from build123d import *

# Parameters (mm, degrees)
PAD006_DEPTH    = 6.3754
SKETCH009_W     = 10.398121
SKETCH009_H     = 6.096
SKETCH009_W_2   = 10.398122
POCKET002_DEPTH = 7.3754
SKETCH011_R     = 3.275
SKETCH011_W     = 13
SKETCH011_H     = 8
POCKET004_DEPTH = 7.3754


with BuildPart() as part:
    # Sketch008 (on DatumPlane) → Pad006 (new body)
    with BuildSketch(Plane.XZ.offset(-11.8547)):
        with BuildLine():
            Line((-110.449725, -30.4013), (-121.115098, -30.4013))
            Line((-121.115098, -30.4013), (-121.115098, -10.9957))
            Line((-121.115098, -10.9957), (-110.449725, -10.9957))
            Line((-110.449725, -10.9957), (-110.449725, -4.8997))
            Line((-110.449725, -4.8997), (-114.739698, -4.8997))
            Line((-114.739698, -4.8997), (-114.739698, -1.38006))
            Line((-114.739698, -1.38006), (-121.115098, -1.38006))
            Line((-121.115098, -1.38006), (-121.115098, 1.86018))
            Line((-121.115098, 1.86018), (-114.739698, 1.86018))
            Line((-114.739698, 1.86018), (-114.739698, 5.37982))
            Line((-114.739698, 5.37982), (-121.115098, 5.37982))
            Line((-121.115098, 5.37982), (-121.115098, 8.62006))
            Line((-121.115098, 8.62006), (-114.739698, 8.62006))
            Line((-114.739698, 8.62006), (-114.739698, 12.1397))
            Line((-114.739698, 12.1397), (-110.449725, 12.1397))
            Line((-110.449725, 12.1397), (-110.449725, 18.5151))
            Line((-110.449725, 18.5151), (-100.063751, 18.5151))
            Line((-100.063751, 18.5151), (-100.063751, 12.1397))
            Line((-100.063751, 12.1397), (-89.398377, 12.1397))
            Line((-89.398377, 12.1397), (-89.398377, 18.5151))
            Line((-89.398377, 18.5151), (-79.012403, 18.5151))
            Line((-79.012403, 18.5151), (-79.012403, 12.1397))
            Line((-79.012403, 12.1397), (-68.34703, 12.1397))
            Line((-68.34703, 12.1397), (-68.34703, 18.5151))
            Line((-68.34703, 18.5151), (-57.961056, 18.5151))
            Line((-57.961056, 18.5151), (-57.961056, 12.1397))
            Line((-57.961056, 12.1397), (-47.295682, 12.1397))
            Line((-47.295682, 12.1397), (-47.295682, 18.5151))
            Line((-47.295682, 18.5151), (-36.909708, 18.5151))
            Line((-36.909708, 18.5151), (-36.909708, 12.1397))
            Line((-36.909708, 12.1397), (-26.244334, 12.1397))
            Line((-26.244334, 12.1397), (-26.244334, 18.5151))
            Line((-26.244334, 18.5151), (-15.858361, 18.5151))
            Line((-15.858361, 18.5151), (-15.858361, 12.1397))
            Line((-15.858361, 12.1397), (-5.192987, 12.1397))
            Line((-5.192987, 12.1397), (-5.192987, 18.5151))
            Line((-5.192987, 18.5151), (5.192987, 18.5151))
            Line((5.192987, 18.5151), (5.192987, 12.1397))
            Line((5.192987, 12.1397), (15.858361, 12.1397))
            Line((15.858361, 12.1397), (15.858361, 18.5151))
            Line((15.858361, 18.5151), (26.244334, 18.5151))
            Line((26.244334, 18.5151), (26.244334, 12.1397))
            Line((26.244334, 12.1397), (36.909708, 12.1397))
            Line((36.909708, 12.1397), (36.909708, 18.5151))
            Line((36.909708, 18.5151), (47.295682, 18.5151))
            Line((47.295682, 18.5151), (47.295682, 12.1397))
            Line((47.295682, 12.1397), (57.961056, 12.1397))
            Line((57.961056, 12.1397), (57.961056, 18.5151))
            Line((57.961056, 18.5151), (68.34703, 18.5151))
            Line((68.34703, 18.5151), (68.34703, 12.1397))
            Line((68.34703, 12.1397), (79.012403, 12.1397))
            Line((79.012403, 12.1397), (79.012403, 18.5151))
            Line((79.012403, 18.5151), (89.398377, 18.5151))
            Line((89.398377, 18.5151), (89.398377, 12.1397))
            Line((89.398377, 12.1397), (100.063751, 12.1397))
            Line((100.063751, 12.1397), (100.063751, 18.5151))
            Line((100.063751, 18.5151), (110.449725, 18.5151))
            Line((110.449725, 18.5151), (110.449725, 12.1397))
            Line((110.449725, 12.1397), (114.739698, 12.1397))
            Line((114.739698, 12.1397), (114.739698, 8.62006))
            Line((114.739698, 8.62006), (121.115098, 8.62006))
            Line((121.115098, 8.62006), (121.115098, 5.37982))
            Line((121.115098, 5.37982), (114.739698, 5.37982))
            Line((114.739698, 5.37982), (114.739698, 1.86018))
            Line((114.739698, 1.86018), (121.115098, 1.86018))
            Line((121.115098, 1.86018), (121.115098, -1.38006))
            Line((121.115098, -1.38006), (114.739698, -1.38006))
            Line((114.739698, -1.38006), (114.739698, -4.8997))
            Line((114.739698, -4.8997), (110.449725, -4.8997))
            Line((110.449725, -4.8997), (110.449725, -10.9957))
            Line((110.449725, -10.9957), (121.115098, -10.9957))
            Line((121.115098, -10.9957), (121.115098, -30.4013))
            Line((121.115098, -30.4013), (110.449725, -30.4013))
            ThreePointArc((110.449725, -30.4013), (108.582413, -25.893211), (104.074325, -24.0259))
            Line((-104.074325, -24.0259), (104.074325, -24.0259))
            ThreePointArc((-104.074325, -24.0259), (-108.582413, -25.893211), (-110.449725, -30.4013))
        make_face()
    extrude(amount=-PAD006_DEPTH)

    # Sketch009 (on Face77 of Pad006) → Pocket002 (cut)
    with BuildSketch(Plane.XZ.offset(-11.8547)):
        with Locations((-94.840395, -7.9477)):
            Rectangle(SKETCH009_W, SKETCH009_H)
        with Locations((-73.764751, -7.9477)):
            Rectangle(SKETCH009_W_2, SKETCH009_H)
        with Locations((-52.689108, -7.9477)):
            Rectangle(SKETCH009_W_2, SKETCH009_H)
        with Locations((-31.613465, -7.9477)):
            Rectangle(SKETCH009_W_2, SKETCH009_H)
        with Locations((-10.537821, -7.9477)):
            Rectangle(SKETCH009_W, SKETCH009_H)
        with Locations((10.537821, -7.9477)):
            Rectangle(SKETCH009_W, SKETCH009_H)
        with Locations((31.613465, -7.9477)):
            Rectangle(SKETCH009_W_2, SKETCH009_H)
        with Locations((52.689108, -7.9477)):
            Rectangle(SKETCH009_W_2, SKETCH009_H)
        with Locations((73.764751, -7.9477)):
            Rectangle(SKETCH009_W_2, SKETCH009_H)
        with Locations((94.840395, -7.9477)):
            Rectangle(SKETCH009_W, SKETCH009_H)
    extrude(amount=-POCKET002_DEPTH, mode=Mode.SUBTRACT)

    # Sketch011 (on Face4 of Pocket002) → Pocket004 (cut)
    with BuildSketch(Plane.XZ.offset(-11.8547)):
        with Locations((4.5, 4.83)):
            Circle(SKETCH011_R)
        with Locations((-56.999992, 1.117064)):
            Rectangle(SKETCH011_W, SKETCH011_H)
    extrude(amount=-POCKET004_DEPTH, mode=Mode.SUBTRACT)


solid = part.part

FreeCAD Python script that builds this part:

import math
import FreeCAD as App
import Part
import Sketcher
Q = App.Units.Quantity

doc = App.newDocument("Part")
body = doc.addObject("PartDesign::Body", "Body")

sketch1 = body.newObject("Sketcher::SketchObject", "Sketch")
sketch1.AttachmentSupport = (doc.getObject("XZ_Plane"), [""])
sketch1.MapMode = "FlatFace"
sketch1.AttachmentOffset = App.Placement(App.Vector(0, 0, -11.8547), App.Rotation())
sketch1.addGeometry(Part.LineSegment(App.Vector(-121.1, -30.4, 0), App.Vector(-110.4, -30.4, 0)), False)
sketch1.addGeometry(Part.ArcOfCircle(Part.Circle(App.Vector(-104.1, -30.4, 0), App.Vector(0, 0, 1), 6.4), math.radians(90), math.radians(180)), False)
sketch1.addGeometry(Part.LineSegment(App.Vector(-104.1, -24, 0), App.Vector(104.1, -24, 0)), False)
sketch1.addGeometry(Part.ArcOfCircle(Part.Circle(App.Vector(104.1, -30.4, 0), App.Vector(0, 0, 1), 6.4), math.radians(0), math.radians(90)), False)
sketch1.addGeometry(Part.LineSegment(App.Vector(110.4, -30.4, 0), App.Vector(121.1, -30.4, 0)), False)
sketch1.addGeometry(Part.LineSegment(App.Vector(121.1, -30.4, 0), App.Vector(121.1, -11, 0)), False)
sketch1.addGeometry(Part.LineSegment(App.Vector(121.1, -11, 0), App.Vector(110.4, -11, 0)), False)
sketch1.addGeometry(Part.LineSegment(App.Vector(110.4, -11, 0), App.Vector(110.4, -4.9, 0)), False)
sketch1.addGeometry(Part.LineSegment(App.Vector(110.4, -4.9, 0), App.Vector(114.7, -4.9, 0)), False)
sketch1.addGeometry(Part.LineSegment(App.Vector(114.7, -4.9, 0), App.Vector(114.7, -1.4, 0)), False)
sketch1.addGeometry(Part.LineSegment(App.Vector(114.7, -1.4, 0), App.Vector(121.1, -1.4, 0)), False)
sketch1.addGeometry(Part.LineSegment(App.Vector(121.1, -1.4, 0), App.Vector(121.1, 1.9, 0)), False)
sketch1.addGeometry(Part.LineSegment(App.Vector(121.1, 1.9, 0), App.Vector(114.7, 1.9, 0)), False)
sketch1.addGeometry(Part.LineSegment(App.Vector(114.7, 1.9, 0), App.Vector(114.7, 5.4, 0)), False)
sketch1.addGeometry(Part.LineSegment(App.Vector(114.7, 5.4, 0), App.Vector(121.1, 5.4, 0)), False)
sketch1.addGeometry(Part.LineSegment(App.Vector(121.1, 5.4, 0), App.Vector(121.1, 8.6, 0)), False)
sketch1.addGeometry(Part.LineSegment(App.Vector(121.1, 8.6, 0), App.Vector(114.7, 8.6, 0)), False)
sketch1.addGeometry(Part.LineSegment(App.Vector(114.7, 8.6, 0), App.Vector(114.7, 12.1, 0)), False)
sketch1.addGeometry(Part.LineSegment(App.Vector(114.7, 12.1, 0), App.Vector(110.4, 12.1, 0)), False)
sketch1.addGeometry(Part.LineSegment(App.Vector(110.4, 12.1, 0), App.Vector(110.4, 18.5, 0)), False)
sketch1.addGeometry(Part.LineSegment(App.Vector(110.4, 18.5, 0), App.Vector(100.1, 18.5, 0)), False)
sketch1.addGeometry(Part.LineSegment(App.Vector(100.1, 18.5, 0), App.Vector(100.1, 12.1, 0)), False)
sketch1.addGeometry(Part.LineSegment(App.Vector(100.1, 12.1, 0), App.Vector(89.4, 12.1, 0)), False)
sketch1.addGeometry(Part.LineSegment(App.Vector(89.4, 12.1, 0), App.Vector(89.4, 18.5, 0)), False)
sketch1.addGeometry(Part.LineSegment(App.Vector(89.4, 18.5, 0), App.Vector(79, 18.5, 0)), False)
sketch1.addGeometry(Part.LineSegment(App.Vector(79, 18.5, 0), App.Vector(79, 12.1, 0)), False)
sketch1.addGeometry(Part.LineSegment(App.Vector(79, 12.1, 0), App.Vector(68.3, 12.1, 0)), False)
sketch1.addGeometry(Part.LineSegment(App.Vector(68.3, 12.1, 0), App.Vector(68.3, 18.5, 0)), False)
sketch1.addGeometry(Part.LineSegment(App.Vector(68.3, 18.5, 0), App.Vector(58, 18.5, 0)), False)
sketch1.addGeometry(Part.LineSegment(App.Vector(58, 18.5, 0), App.Vector(58, 12.1, 0)), False)
sketch1.addGeometry(Part.LineSegment(App.Vector(58, 12.1, 0), App.Vector(47.3, 12.1, 0)), False)
sketch1.addGeometry(Part.LineSegment(App.Vector(47.3, 12.1, 0), App.Vector(47.3, 18.5, 0)), False)
sketch1.addGeometry(Part.LineSegment(App.Vector(47.3, 18.5, 0), App.Vector(36.9, 18.5, 0)), False)
sketch1.addGeometry(Part.LineSegment(App.Vector(36.9, 18.5, 0), App.Vector(36.9, 12.1, 0)), False)
sketch1.addGeometry(Part.LineSegment(App.Vector(36.9, 12.1, 0), App.Vector(26.2, 12.1, 0)), False)
sketch1.addGeometry(Part.LineSegment(App.Vector(26.2, 12.1, 0), App.Vector(26.2, 18.5, 0)), False)
sketch1.addGeometry(Part.LineSegment(App.Vector(26.2, 18.5, 0), App.Vector(15.9, 18.5, 0)), False)
sketch1.addGeometry(Part.LineSegment(App.Vector(15.9, 18.5, 0), App.Vector(15.9, 12.1, 0)), False)
sketch1.addGeometry(Part.LineSegment(App.Vector(15.9, 12.1, 0), App.Vector(5.2, 12.1, 0)), False)
sketch1.addGeometry(Part.LineSegment(App.Vector(5.2, 12.1, 0), App.Vector(5.2, 18.5, 0)), False)
sketch1.addGeometry(Part.LineSegment(App.Vector(5.2, 18.5, 0), App.Vector(-5.2, 18.5, 0)), False)
sketch1.addGeometry(Part.LineSegment(App.Vector(-5.2, 18.5, 0), App.Vector(-5.2, 12.1, 0)), False)
sketch1.addGeometry(Part.LineSegment(App.Vector(-5.2, 12.1, 0), App.Vector(-15.9, 12.1, 0)), False)
sketch1.addGeometry(Part.LineSegment(App.Vector(-15.9, 12.1, 0), App.Vector(-15.9, 18.5, 0)), False)
sketch1.addGeometry(Part.LineSegment(App.Vector(-15.9, 18.5, 0), App.Vector(-26.2, 18.5, 0)), False)
sketch1.addGeometry(Part.LineSegment(App.Vector(-26.2, 18.5, 0), App.Vector(-26.2, 12.1, 0)), False)
sketch1.addGeometry(Part.LineSegment(App.Vector(-26.2, 12.1, 0), App.Vector(-36.9, 12.1, 0)), False)
sketch1.addGeometry(Part.LineSegment(App.Vector(-36.9, 12.1, 0), App.Vector(-36.9, 18.5, 0)), False)
sketch1.addGeometry(Part.LineSegment(App.Vector(-36.9, 18.5, 0), App.Vector(-47.3, 18.5, 0)), False)
sketch1.addGeometry(Part.LineSegment(App.Vector(-47.3, 18.5, 0), App.Vector(-47.3, 12.1, 0)), False)
sketch1.addGeometry(Part.LineSegment(App.Vector(-47.3, 12.1, 0), App.Vector(-58, 12.1, 0)), False)
sketch1.addGeometry(Part.LineSegment(App.Vector(-58, 12.1, 0), App.Vector(-58, 18.5, 0)), False)
sketch1.addGeometry(Part.LineSegment(App.Vector(-58, 18.5, 0), App.Vector(-68.3, 18.5, 0)), False)
sketch1.addGeometry(Part.LineSegment(App.Vector(-68.3, 18.5, 0), App.Vector(-68.3, 12.1, 0)), False)
sketch1.addGeometry(Part.LineSegment(App.Vector(-68.3, 12.1, 0), App.Vector(-79, 12.1, 0)), False)
sketch1.addGeometry(Part.LineSegment(App.Vector(-79, 12.1, 0), App.Vector(-79, 18.5, 0)), False)
sketch1.addGeometry(Part.LineSegment(App.Vector(-79, 18.5, 0), App.Vector(-89.4, 18.5, 0)), False)
sketch1.addGeometry(Part.LineSegment(App.Vector(-89.4, 18.5, 0), App.Vector(-89.4, 12.1, 0)), False)
sketch1.addGeometry(Part.LineSegment(App.Vector(-89.4, 12.1, 0), App.Vector(-100.1, 12.1, 0)), False)
sketch1.addGeometry(Part.LineSegment(App.Vector(-100.1, 12.1, 0), App.Vector(-100.1, 18.5, 0)), False)
sketch1.addGeometry(Part.LineSegment(App.Vector(-100.1, 18.5, 0), App.Vector(-110.4, 18.5, 0)), False)
sketch1.addGeometry(Part.LineSegment(App.Vector(-110.4, 18.5, 0), App.Vector(-110.4, 12.1, 0)), False)
sketch1.addGeometry(Part.LineSegment(App.Vector(-110.4, 12.1, 0), App.Vector(-114.7, 12.1, 0)), False)
sketch1.addGeometry(Part.LineSegment(App.Vector(-114.7, 12.1, 0), App.Vector(-114.7, 8.6, 0)), False)
sketch1.addGeometry(Part.LineSegment(App.Vector(-114.7, 8.6, 0), App.Vector(-121.1, 8.6, 0)), False)
sketch1.addGeometry(Part.LineSegment(App.Vector(-121.1, 8.6, 0), App.Vector(-121.1, 5.4, 0)), False)
sketch1.addGeometry(Part.LineSegment(App.Vector(-121.1, 5.4, 0), App.Vector(-114.7, 5.4, 0)), False)
sketch1.addGeometry(Part.LineSegment(App.Vector(-114.7, 5.4, 0), App.Vector(-114.7, 1.9, 0)), False)
sketch1.addGeometry(Part.LineSegment(App.Vector(-114.7, 1.9, 0), App.Vector(-121.1, 1.9, 0)), False)
sketch1.addGeometry(Part.LineSegment(App.Vector(-121.1, 1.9, 0), App.Vector(-121.1, -1.4, 0)), False)
sketch1.addGeometry(Part.LineSegment(App.Vector(-121.1, -1.4, 0), App.Vector(-114.7, -1.4, 0)), False)
sketch1.addGeometry(Part.LineSegment(App.Vector(-114.7, -1.4, 0), App.Vector(-114.7, -4.9, 0)), False)
sketch1.addGeometry(Part.LineSegment(App.Vector(-114.7, -4.9, 0), App.Vector(-110.4, -4.9, 0)), False)
sketch1.addGeometry(Part.LineSegment(App.Vector(-110.4, -4.9, 0), App.Vector(-110.4, -11, 0)), False)
sketch1.addGeometry(Part.LineSegment(App.Vector(-110.4, -11, 0), App.Vector(-121.1, -11, 0)), False)
sketch1.addGeometry(Part.LineSegment(App.Vector(-121.1, -11, 0), App.Vector(-121.1, -30.4, 0)), False)
sketch1.addConstraint(Sketcher.Constraint("Coincident", 0, 2, 1, 2))
sketch1.addConstraint(Sketcher.Constraint("Tangent", 1, 1, 2, 1))
sketch1.addConstraint(Sketcher.Constraint("Tangent", 2, 2, 3, 2))
sketch1.addConstraint(Sketcher.Constraint("Coincident", 3, 1, 4, 1))
sketch1.addConstraint(Sketcher.Constraint("Coincident", 4, 2, 5, 1))
sketch1.addConstraint(Sketcher.Constraint("Coincident", 5, 2, 6, 1))
sketch1.addConstraint(Sketcher.Constraint("Coincident", 6, 2, 7, 1))
sketch1.addConstraint(Sketcher.Constraint("Coincident", 7, 2, 8, 1))
sketch1.addConstraint(Sketcher.Constraint("Coincident", 8, 2, 9, 1))
sketch1.addConstraint(Sketcher.Constraint("Coincident", 9, 2, 10, 1))
sketch1.addConstraint(Sketcher.Constraint("Coincident", 10, 2, 11, 1))
sketch1.addConstraint(Sketcher.Constraint("Coincident", 11, 2, 12, 1))
sketch1.addConstraint(Sketcher.Constraint("Coincident", 12, 2, 13, 1))
sketch1.addConstraint(Sketcher.Constraint("Coincident", 13, 2, 14, 1))
sketch1.addConstraint(Sketcher.Constraint("Coincident", 14, 2, 15, 1))
sketch1.addConstraint(Sketcher.Constraint("Coincident", 15, 2, 16, 1))
sketch1.addConstraint(Sketcher.Constraint("Coincident", 16, 2, 17, 1))
sketch1.addConstraint(Sketcher.Constraint("Coincident", 17, 2, 18, 1))
sketch1.addConstraint(Sketcher.Constraint("Coincident", 18, 2, 19, 1))
sketch1.addConstraint(Sketcher.Constraint("Coincident", 19, 2, 20, 1))
sketch1.addConstraint(Sketcher.Constraint("Coincident", 20, 2, 21, 1))
sketch1.addConstraint(Sketcher.Constraint("Coincident", 21, 2, 22, 1))
sketch1.addConstraint(Sketcher.Constraint("Coincident", 22, 2, 23, 1))
sketch1.addConstraint(Sketcher.Constraint("Coincident", 23, 2, 24, 1))
sketch1.addConstraint(Sketcher.Constraint("Coincident", 24, 2, 25, 1))
sketch1.addConstraint(Sketcher.Constraint("Coincident", 25, 2, 26, 1))
sketch1.addConstraint(Sketcher.Constraint("Coincident", 26, 2, 27, 1))
sketch1.addConstraint(Sketcher.Constraint("Coincident", 27, 2, 28, 1))
sketch1.addConstraint(Sketcher.Constraint("Coincident", 28, 2, 29, 1))
sketch1.addConstraint(Sketcher.Constraint("Coincident", 29, 2, 30, 1))
sketch1.addConstraint(Sketcher.Constraint("Coincident", 30, 2, 31, 1))
sketch1.addConstraint(Sketcher.Constraint("Coincident", 31, 2, 32, 1))
sketch1.addConstraint(Sketcher.Constraint("Coincident", 32, 2, 33, 1))
sketch1.addConstraint(Sketcher.Constraint("Coincident", 33, 2, 34, 1))
sketch1.addConstraint(Sketcher.Constraint("Coincident", 34, 2, 35, 1))
sketch1.addConstraint(Sketcher.Constraint("Coincident", 35, 2, 36, 1))
sketch1.addConstraint(Sketcher.Constraint("Coincident", 36, 2, 37, 1))
sketch1.addConstraint(Sketcher.Constraint("Coincident", 37, 2, 38, 1))
sketch1.addConstraint(Sketcher.Constraint("Coincident", 38, 2, 39, 1))
sketch1.addConstraint(Sketcher.Constraint("Coincident", 39, 2, 40, 1))
sketch1.addConstraint(Sketcher.Constraint("Coincident", 40, 2, 41, 1))
sketch1.addConstraint(Sketcher.Constraint("Coincident", 41, 2, 42, 1))
sketch1.addConstraint(Sketcher.Constraint("Coincident", 42, 2, 43, 1))
sketch1.addConstraint(Sketcher.Constraint("Coincident", 43, 2, 44, 1))
sketch1.addConstraint(Sketcher.Constraint("Coincident", 44, 2, 45, 1))
sketch1.addConstraint(Sketcher.Constraint("Coincident", 45, 2, 46, 1))
sketch1.addConstraint(Sketcher.Constraint("Coincident", 46, 2, 47, 1))
sketch1.addConstraint(Sketcher.Constraint("Coincident", 47, 2, 48, 1))
sketch1.addConstraint(Sketcher.Constraint("Coincident", 48, 2, 49, 1))
sketch1.addConstraint(Sketcher.Constraint("Coincident", 49, 2, 50, 1))
sketch1.addConstraint(Sketcher.Constraint("Coincident", 50, 2, 51, 1))
sketch1.addConstraint(Sketcher.Constraint("Coincident", 51, 2, 52, 1))
sketch1.addConstraint(Sketcher.Constraint("Coincident", 52, 2, 53, 1))
sketch1.addConstraint(Sketcher.Constraint("Coincident", 53, 2, 54, 1))
sketch1.addConstraint(Sketcher.Constraint("Coincident", 54, 2, 55, 1))
sketch1.addConstraint(Sketcher.Constraint("Coincident", 55, 2, 56, 1))
sketch1.addConstraint(Sketcher.Constraint("Coincident", 56, 2, 57, 1))
sketch1.addConstraint(Sketcher.Constraint("Coincident", 57, 2, 58, 1))
sketch1.addConstraint(Sketcher.Constraint("Coincident", 58, 2, 59, 1))
sketch1.addConstraint(Sketcher.Constraint("Coincident", 59, 2, 60, 1))
sketch1.addConstraint(Sketcher.Constraint("Coincident", 60, 2, 61, 1))
sketch1.addConstraint(Sketcher.Constraint("Coincident", 61, 2, 62, 1))
sketch1.addConstraint(Sketcher.Constraint("Coincident", 62, 2, 63, 1))
sketch1.addConstraint(Sketcher.Constraint("Coincident", 63, 2, 64, 1))
sketch1.addConstraint(Sketcher.Constraint("Coincident", 64, 2, 65, 1))
sketch1.addConstraint(Sketcher.Constraint("Coincident", 65, 2, 66, 1))
sketch1.addConstraint(Sketcher.Constraint("Coincident", 66, 2, 67, 1))
sketch1.addConstraint(Sketcher.Constraint("Coincident", 67, 2, 68, 1))
sketch1.addConstraint(Sketcher.Constraint("Coincident", 68, 2, 69, 1))
sketch1.addConstraint(Sketcher.Constraint("Coincident", 69, 2, 70, 1))
sketch1.addConstraint(Sketcher.Constraint("Coincident", 70, 2, 71, 1))
sketch1.addConstraint(Sketcher.Constraint("Coincident", 71, 2, 72, 1))
sketch1.addConstraint(Sketcher.Constraint("Coincident", 72, 2, 73, 1))
sketch1.addConstraint(Sketcher.Constraint("Coincident", 73, 2, 74, 1))
sketch1.addConstraint(Sketcher.Constraint("Coincident", 74, 2, 75, 1))
sketch1.addConstraint(Sketcher.Constraint("Coincident", 75, 2, 0, 1))
sketch1.addConstraint(Sketcher.Constraint("Horizontal", 0))
sketch1.addConstraint(Sketcher.Constraint("Horizontal", 2))
sketch1.addConstraint(Sketcher.Constraint("Horizontal", 4))
sketch1.addConstraint(Sketcher.Constraint("Vertical", 5))
sketch1.addConstraint(Sketcher.Constraint("Horizontal", 6))
sketch1.addConstraint(Sketcher.Constraint("Vertical", 7))
sketch1.addConstraint(Sketcher.Constraint("Horizontal", 8))
sketch1.addConstraint(Sketcher.Constraint("Vertical", 9))
sketch1.addConstraint(Sketcher.Constraint("Horizontal", 10))
sketch1.addConstraint(Sketcher.Constraint("Vertical", 11))
sketch1.addConstraint(Sketcher.Constraint("Horizontal", 12))
sketch1.addConstraint(Sketcher.Constraint("Vertical", 13))
sketch1.addConstraint(Sketcher.Constraint("Horizontal", 14))
sketch1.addConstraint(Sketcher.Constraint("Vertical", 15))
sketch1.addConstraint(Sketcher.Constraint("Horizontal", 16))
sketch1.addConstraint(Sketcher.Constraint("Vertical", 17))
sketch1.addConstraint(Sketcher.Constraint("Horizontal", 18))
sketch1.addConstraint(Sketcher.Constraint("Vertical", 19))
sketch1.addConstraint(Sketcher.Constraint("Horizontal", 20))
sketch1.addConstraint(Sketcher.Constraint("Vertical", 21))
sketch1.addConstraint(Sketcher.Constraint("Horizontal", 22))
sketch1.addConstraint(Sketcher.Constraint("Vertical", 23))
sketch1.addConstraint(Sketcher.Constraint("Horizontal", 24))
sketch1.addConstraint(Sketcher.Constraint("Vertical", 25))
sketch1.addConstraint(Sketcher.Constraint("Horizontal", 26))
sketch1.addConstraint(Sketcher.Constraint("Vertical", 27))
sketch1.addConstraint(Sketcher.Constraint("Horizontal", 28))
sketch1.addConstraint(Sketcher.Constraint("Vertical", 29))
sketch1.addConstraint(Sketcher.Constraint("Horizontal", 30))
sketch1.addConstraint(Sketcher.Constraint("Vertical", 31))
sketch1.addConstraint(Sketcher.Constraint("Horizontal", 32))
sketch1.addConstraint(Sketcher.Constraint("Vertical", 33))
sketch1.addConstraint(Sketcher.Constraint("Horizontal", 34))
sketch1.addConstraint(Sketcher.Constraint("Vertical", 35))
sketch1.addConstraint(Sketcher.Constraint("Horizontal", 36))
sketch1.addConstraint(Sketcher.Constraint("Vertical", 37))
sketch1.addConstraint(Sketcher.Constraint("Horizontal", 38))
sketch1.addConstraint(Sketcher.Constraint("Vertical", 39))
sketch1.addConstraint(Sketcher.Constraint("Horizontal", 40))
sketch1.addConstraint(Sketcher.Constraint("Vertical", 41))
sketch1.addConstraint(Sketcher.Constraint("Horizontal", 42))
sketch1.addConstraint(Sketcher.Constraint("Vertical", 43))
sketch1.addConstraint(Sketcher.Constraint("Horizontal", 44))
sketch1.addConstraint(Sketcher.Constraint("Vertical", 45))
sketch1.addConstraint(Sketcher.Constraint("Horizontal", 46))
sketch1.addConstraint(Sketcher.Constraint("Vertical", 47))
sketch1.addConstraint(Sketcher.Constraint("Horizontal", 48))
sketch1.addConstraint(Sketcher.Constraint("Vertical", 49))
sketch1.addConstraint(Sketcher.Constraint("Horizontal", 50))
sketch1.addConstraint(Sketcher.Constraint("Vertical", 51))
sketch1.addConstraint(Sketcher.Constraint("Horizontal", 52))
sketch1.addConstraint(Sketcher.Constraint("Vertical", 53))
sketch1.addConstraint(Sketcher.Constraint("Horizontal", 54))
sketch1.addConstraint(Sketcher.Constraint("Vertical", 55))
sketch1.addConstraint(Sketcher.Constraint("Horizontal", 56))
sketch1.addConstraint(Sketcher.Constraint("Vertical", 57))
sketch1.addConstraint(Sketcher.Constraint("Horizontal", 58))
sketch1.addConstraint(Sketcher.Constraint("Vertical", 59))
sketch1.addConstraint(Sketcher.Constraint("Horizontal", 60))
sketch1.addConstraint(Sketcher.Constraint("Vertical", 61))
sketch1.addConstraint(Sketcher.Constraint("Horizontal", 62))
sketch1.addConstraint(Sketcher.Constraint("Vertical", 63))
sketch1.addConstraint(Sketcher.Constraint("Horizontal", 64))
sketch1.addConstraint(Sketcher.Constraint("Vertical", 65))
sketch1.addConstraint(Sketcher.Constraint("Horizontal", 66))
sketch1.addConstraint(Sketcher.Constraint("Vertical", 67))
sketch1.addConstraint(Sketcher.Constraint("Horizontal", 68))
sketch1.addConstraint(Sketcher.Constraint("Vertical", 69))
sketch1.addConstraint(Sketcher.Constraint("Horizontal", 70))
sketch1.addConstraint(Sketcher.Constraint("Vertical", 71))
sketch1.addConstraint(Sketcher.Constraint("Horizontal", 72))
sketch1.addConstraint(Sketcher.Constraint("Vertical", 73))
sketch1.addConstraint(Sketcher.Constraint("Horizontal", 74))
sketch1.addConstraint(Sketcher.Constraint("Vertical", 75))
sketch1.addConstraint(Sketcher.Constraint("Equal", 1, 3))
sketch1.addConstraint(Sketcher.Constraint("Symmetric", 0, 2, 3, 1, -2))
sketch1.addConstraint(Sketcher.Constraint("Symmetric", 38, 2, 41, 2, -2))
sketch1.addConstraint(Sketcher.Constraint("Symmetric", 36, 2, 43, 2, -2))
sketch1.addConstraint(Sketcher.Constraint("Symmetric", 34, 2, 45, 2, -2))
sketch1.addConstraint(Sketcher.Constraint("Symmetric", 32, 2, 47, 2, -2))
sketch1.addConstraint(Sketcher.Constraint("Symmetric", 30, 2, 49, 2, -2))
sketch1.addConstraint(Sketcher.Constraint("Symmetric", 28, 2, 51, 2, -2))
sketch1.addConstraint(Sketcher.Constraint("Symmetric", 26, 2, 53, 2, -2))
sketch1.addConstraint(Sketcher.Constraint("Symmetric", 24, 2, 55, 2, -2))
sketch1.addConstraint(Sketcher.Constraint("Symmetric", 22, 2, 57, 2, -2))
sketch1.addConstraint(Sketcher.Constraint("Symmetric", 20, 2, 59, 2, -2))
sketch1.addConstraint(Sketcher.Constraint("Symmetric", 18, 2, 61, 2, -2))
sketch1.addConstraint(Sketcher.Constraint("Symmetric", 16, 2, 63, 2, -2))
sketch1.addConstraint(Sketcher.Constraint("Symmetric", 14, 2, 65, 2, -2))
sketch1.addConstraint(Sketcher.Constraint("Symmetric", 12, 2, 67, 2, -2))
sketch1.addConstraint(Sketcher.Constraint("Symmetric", 10, 2, 69, 2, -2))
sketch1.addConstraint(Sketcher.Constraint("Symmetric", 8, 2, 71, 2, -2))
sketch1.addConstraint(Sketcher.Constraint("Symmetric", 6, 2, 73, 2, -2))
sketch1.addConstraint(Sketcher.Constraint("Horizontal", 3, 3, 0, 2))
sketch1.addConstraint(Sketcher.Constraint("Horizontal", 18, 2, 21, 2))
sketch1.addConstraint(Sketcher.Constraint("Horizontal", 20, 2, 23, 2))
sketch1.addConstraint(Sketcher.Constraint("Horizontal", 22, 2, 25, 2))
sketch1.addConstraint(Sketcher.Constraint("Horizontal", 24, 2, 27, 2))
sketch1.addConstraint(Sketcher.Constraint("Horizontal", 26, 2, 29, 2))
sketch1.addConstraint(Sketcher.Constraint("Horizontal", 28, 2, 31, 2))
sketch1.addConstraint(Sketcher.Constraint("Horizontal", 30, 2, 33, 2))
sketch1.addConstraint(Sketcher.Constraint("Horizontal", 32, 2, 35, 2))
sketch1.addConstraint(Sketcher.Constraint("Horizontal", 34, 2, 37, 2))
sketch1.addConstraint(Sketcher.Constraint("Horizontal", 36, 2, 39, 2))
sketch1.addConstraint(Sketcher.Constraint("Vertical", 3, 1, 6, 2))
sketch1.addConstraint(Sketcher.Constraint("Vertical", 5, 2, 10, 2))
sketch1.addConstraint(Sketcher.Constraint("Vertical", 9, 2, 12, 2))
sketch1.addConstraint(Sketcher.Constraint("Vertical", 11, 2, 14, 2))
sketch1.addConstraint(Sketcher.Constraint("Vertical", 13, 2, 16, 2))
sketch1.addConstraint(Sketcher.Constraint("Vertical", 7, 2, 18, 2))
sketch1.addConstraint(Sketcher.Constraint("Vertical", 69, 2, 74, 2))
sketch1.addConstraint(Sketcher.Constraint("Equal", 6, 22))
sketch1.addConstraint(Sketcher.Constraint("Equal", 20, 24))
sketch1.addConstraint(Sketcher.Constraint("Equal", 22, 26))
sketch1.addConstraint(Sketcher.Constraint("Equal", 24, 28))
sketch1.addConstraint(Sketcher.Constraint("Equal", 26, 30))
sketch1.addConstraint(Sketcher.Constraint("Equal", 28, 32))
sketch1.addConstraint(Sketcher.Constraint("Equal", 30, 34))
sketch1.addConstraint(Sketcher.Constraint("Equal", 32, 36))
sketch1.addConstraint(Sketcher.Constraint("Equal", 34, 38))
sketch1.addConstraint(Sketcher.Constraint("Equal", 36, 40))
sketch1.addConstraint(Sketcher.Constraint("Equal", 9, 13))
sketch1.addConstraint(Sketcher.Constraint("Equal", 11, 15))
sketch1.addConstraint(Sketcher.Constraint("Equal", 13, 17))
sketch1.addConstraint(Sketcher.Constraint("Equal", 70, 19))
sketch1.addConstraint(Sketcher.Constraint("Radius", 1, Q("0.251 in")))
sketch1.addConstraint(Sketcher.Constraint("DistanceY", 7, 1, 7, 2, Q("0.24 in")))
sketch1.addConstraint(Sketcher.Constraint("DistanceX", 10, 1, 10, 2, Q("0.251 in")))
sketch1.addConstraint(Sketcher.Constraint("DistanceY", 5, 1, 5, 2, Q("0.764 in")))
sketch1.addConstraint(Sketcher.Constraint("DistanceX", 2, 1, 2, 2, 208.14865))
sketch1.addConstraint(Sketcher.Constraint("DistanceY", 9, 1, 9, 2, 3.51964))
sketch1.addConstraint(Sketcher.Constraint("DistanceY", 11, 1, 11, 2, 3.24024))
sketch1.addConstraint(Sketcher.Constraint("DistanceY", 1, 3, -1, 1, 30.4013))
sketch1.addConstraint(Sketcher.Constraint("DistanceX", -1, 1, 4, 2, 121.115098))
pad1 = body.newObject("PartDesign::Pad", "Pad")
pad1.Profile = sketch1
pad1.Length = Q("0.251 in")
pad1.Reversed = True

sketch2 = body.newObject("Sketcher::SketchObject", "Sketch001")
sketch2.AttachmentSupport = (doc.getObject("XZ_Plane"), [""])
sketch2.MapMode = "FlatFace"
sketch2.AttachmentOffset = App.Placement(App.Vector(0, 0, -11.8547), App.Rotation())
sketch2.addGeometry(Part.LineSegment(App.Vector(-100, -5, 0), App.Vector(-100, -11, 0)), False)
sketch2.addGeometry(Part.LineSegment(App.Vector(-100, -11, 0), App.Vector(-90, -11, 0)), False)
sketch2.addGeometry(Part.LineSegment(App.Vector(-90, -11, 0), App.Vector(-90, -5, 0)), False)
sketch2.addGeometry(Part.LineSegment(App.Vector(-90, -5, 0), App.Vector(-100, -5, 0)), False)
sketch2.addGeometry(Part.LineSegment(App.Vector(-79, -5, 0), App.Vector(-79, -11, 0)), False)
sketch2.addGeometry(Part.LineSegment(App.Vector(-79, -11, 0), App.Vector(-69, -11, 0)), False)
sketch2.addGeometry(Part.LineSegment(App.Vector(-69, -11, 0), App.Vector(-69, -5, 0)), False)
sketch2.addGeometry(Part.LineSegment(App.Vector(-69, -5, 0), App.Vector(-79, -5, 0)), False)
sketch2.addGeometry(Part.LineSegment(App.Vector(-58, -5, 0), App.Vector(-58, -11, 0)), False)
sketch2.addGeometry(Part.LineSegment(App.Vector(-58, -11, 0), App.Vector(-47, -11, 0)), False)
sketch2.addGeometry(Part.LineSegment(App.Vector(-47, -11, 0), App.Vector(-47, -5, 0)), False)
sketch2.addGeometry(Part.LineSegment(App.Vector(-47, -5, 0), App.Vector(-58, -5, 0)), False)
sketch2.addGeometry(Part.LineSegment(App.Vector(-37, -5, 0), App.Vector(-37, -11, 0)), False)
sketch2.addGeometry(Part.LineSegment(App.Vector(-37, -11, 0), App.Vector(-26, -11, 0)), False)
sketch2.addGeometry(Part.LineSegment(App.Vector(-26, -11, 0), App.Vector(-26, -5, 0)), False)
sketch2.addGeometry(Part.LineSegment(App.Vector(-26, -5, 0), App.Vector(-37, -5, 0)), False)
sketch2.addGeometry(Part.LineSegment(App.Vector(-16, -5, 0), App.Vector(-16, -11, 0)), False)
sketch2.addGeometry(Part.LineSegment(App.Vector(-16, -11, 0), App.Vector(-5, -11, 0)), False)
sketch2.addGeometry(Part.LineSegment(App.Vector(-5, -11, 0), App.Vector(-5, -5, 0)), False)
sketch2.addGeometry(Part.LineSegment(App.Vector(-5, -5, 0), App.Vector(-16, -5, 0)), False)
sketch2.addGeometry(Part.LineSegment(App.Vector(5, -5, 0), App.Vector(5, -11, 0)), False)
sketch2.addGeometry(Part.LineSegment(App.Vector(5, -11, 0), App.Vector(16, -11, 0)), False)
sketch2.addGeometry(Part.LineSegment(App.Vector(16, -11, 0), App.Vector(16, -5, 0)), False)
sketch2.addGeometry(Part.LineSegment(App.Vector(16, -5, 0), App.Vector(5, -5, 0)), False)
sketch2.addGeometry(Part.LineSegment(App.Vector(26, -5, 0), App.Vector(26, -11, 0)), False)
sketch2.addGeometry(Part.LineSegment(App.Vector(26, -11, 0), App.Vector(37, -11, 0)), False)
sketch2.addGeometry(Part.LineSegment(App.Vector(37, -11, 0), App.Vector(37, -5, 0)), False)
sketch2.addGeometry(Part.LineSegment(App.Vector(37, -5, 0), App.Vector(26, -5, 0)), False)
sketch2.addGeometry(Part.LineSegment(App.Vector(47, -5, 0), App.Vector(47, -11, 0)), False)
sketch2.addGeometry(Part.LineSegment(App.Vector(47, -11, 0), App.Vector(58, -11, 0)), False)
sketch2.addGeometry(Part.LineSegment(App.Vector(58, -11, 0), App.Vector(58, -5, 0)), False)
sketch2.addGeometry(Part.LineSegment(App.Vector(58, -5, 0), App.Vector(47, -5, 0)), False)
sketch2.addGeometry(Part.LineSegment(App.Vector(69, -5, 0), App.Vector(69, -11, 0)), False)
sketch2.addGeometry(Part.LineSegment(App.Vector(69, -11, 0), App.Vector(79, -11, 0)), False)
sketch2.addGeometry(Part.LineSegment(App.Vector(79, -11, 0), App.Vector(79, -5, 0)), False)
sketch2.addGeometry(Part.LineSegment(App.Vector(79, -5, 0), App.Vector(69, -5, 0)), False)
sketch2.addGeometry(Part.LineSegment(App.Vector(90, -5, 0), App.Vector(90, -11, 0)), False)
sketch2.addGeometry(Part.LineSegment(App.Vector(90, -11, 0), App.Vector(100, -11, 0)), False)
sketch2.addGeometry(Part.LineSegment(App.Vector(100, -11, 0), App.Vector(100, -5, 0)), False)
sketch2.addGeometry(Part.LineSegment(App.Vector(100, -5, 0), App.Vector(90, -5, 0)), False)
sketch2.addConstraint(Sketcher.Constraint("Coincident", 0, 2, 1, 1))
sketch2.addConstraint(Sketcher.Constraint("Coincident", 1, 2, 2, 1))
sketch2.addConstraint(Sketcher.Constraint("Coincident", 2, 2, 3, 1))
sketch2.addConstraint(Sketcher.Constraint("Coincident", 3, 2, 0, 1))
sketch2.addConstraint(Sketcher.Constraint("Coincident", 4, 2, 5, 1))
sketch2.addConstraint(Sketcher.Constraint("Coincident", 5, 2, 6, 1))
sketch2.addConstraint(Sketcher.Constraint("Coincident", 6, 2, 7, 1))
sketch2.addConstraint(Sketcher.Constraint("Coincident", 7, 2, 4, 1))
sketch2.addConstraint(Sketcher.Constraint("Coincident", 8, 2, 9, 1))
sketch2.addConstraint(Sketcher.Constraint("Coincident", 9, 2, 10, 1))
sketch2.addConstraint(Sketcher.Constraint("Coincident", 10, 2, 11, 1))
sketch2.addConstraint(Sketcher.Constraint("Coincident", 11, 2, 8, 1))
sketch2.addConstraint(Sketcher.Constraint("Coincident", 12, 2, 13, 1))
sketch2.addConstraint(Sketcher.Constraint("Coincident", 13, 2, 14, 1))
sketch2.addConstraint(Sketcher.Constraint("Coincident", 14, 2, 15, 1))
sketch2.addConstraint(Sketcher.Constraint("Coincident", 15, 2, 12, 1))
sketch2.addConstraint(Sketcher.Constraint("Coincident", 16, 2, 17, 1))
sketch2.addConstraint(Sketcher.Constraint("Coincident", 17, 2, 18, 1))
sketch2.addConstraint(Sketcher.Constraint("Coincident", 18, 2, 19, 1))
sketch2.addConstraint(Sketcher.Constraint("Coincident", 19, 2, 16, 1))
sketch2.addConstraint(Sketcher.Constraint("Coincident", 20, 2, 21, 1))
sketch2.addConstraint(Sketcher.Constraint("Coincident", 21, 2, 22, 1))
sketch2.addConstraint(Sketcher.Constraint("Coincident", 22, 2, 23, 1))
sketch2.addConstraint(Sketcher.Constraint("Coincident", 23, 2, 20, 1))
sketch2.addConstraint(Sketcher.Constraint("Coincident", 24, 2, 25, 1))
sketch2.addConstraint(Sketcher.Constraint("Coincident", 25, 2, 26, 1))
sketch2.addConstraint(Sketcher.Constraint("Coincident", 26, 2, 27, 1))
sketch2.addConstraint(Sketcher.Constraint("Coincident", 27, 2, 24, 1))
sketch2.addConstraint(Sketcher.Constraint("Coincident", 28, 2, 29, 1))
sketch2.addConstraint(Sketcher.Constraint("Coincident", 29, 2, 30, 1))
sketch2.addConstraint(Sketcher.Constraint("Coincident", 30, 2, 31, 1))
sketch2.addConstraint(Sketcher.Constraint("Coincident", 31, 2, 28, 1))
sketch2.addConstraint(Sketcher.Constraint("Coincident", 32, 2, 33, 1))
sketch2.addConstraint(Sketcher.Constraint("Coincident", 33, 2, 34, 1))
sketch2.addConstraint(Sketcher.Constraint("Coincident", 34, 2, 35, 1))
sketch2.addConstraint(Sketcher.Constraint("Coincident", 35, 2, 32, 1))
sketch2.addConstraint(Sketcher.Constraint("Coincident", 36, 2, 37, 1))
sketch2.addConstraint(Sketcher.Constraint("Coincident", 37, 2, 38, 1))
sketch2.addConstraint(Sketcher.Constraint("Coincident", 38, 2, 39, 1))
sketch2.addConstraint(Sketcher.Constraint("Coincident", 39, 2, 36, 1))
sketch2.addConstraint(Sketcher.Constraint("Vertical", 0))
sketch2.addConstraint(Sketcher.Constraint("Horizontal", 1))
sketch2.addConstraint(Sketcher.Constraint("Vertical", 2))
sketch2.addConstraint(Sketcher.Constraint("Horizontal", 3))
sketch2.addConstraint(Sketcher.Constraint("Vertical", 4))
sketch2.addConstraint(Sketcher.Constraint("Horizontal", 5))
sketch2.addConstraint(Sketcher.Constraint("Vertical", 6))
sketch2.addConstraint(Sketcher.Constraint("Horizontal", 7))
sketch2.addConstraint(Sketcher.Constraint("Vertical", 8))
sketch2.addConstraint(Sketcher.Constraint("Horizontal", 9))
sketch2.addConstraint(Sketcher.Constraint("Vertical", 10))
sketch2.addConstraint(Sketcher.Constraint("Horizontal", 11))
sketch2.addConstraint(Sketcher.Constraint("Vertical", 12))
sketch2.addConstraint(Sketcher.Constraint("Horizontal", 13))
sketch2.addConstraint(Sketcher.Constraint("Vertical", 14))
sketch2.addConstraint(Sketcher.Constraint("Horizontal", 15))
sketch2.addConstraint(Sketcher.Constraint("Vertical", 16))
sketch2.addConstraint(Sketcher.Constraint("Horizontal", 17))
sketch2.addConstraint(Sketcher.Constraint("Vertical", 18))
sketch2.addConstraint(Sketcher.Constraint("Horizontal", 19))
sketch2.addConstraint(Sketcher.Constraint("Vertical", 20))
sketch2.addConstraint(Sketcher.Constraint("Horizontal", 21))
sketch2.addConstraint(Sketcher.Constraint("Vertical", 22))
sketch2.addConstraint(Sketcher.Constraint("Horizontal", 23))
sketch2.addConstraint(Sketcher.Constraint("Vertical", 24))
sketch2.addConstraint(Sketcher.Constraint("Horizontal", 25))
sketch2.addConstraint(Sketcher.Constraint("Vertical", 26))
sketch2.addConstraint(Sketcher.Constraint("Horizontal", 27))
sketch2.addConstraint(Sketcher.Constraint("Vertical", 28))
sketch2.addConstraint(Sketcher.Constraint("Horizontal", 29))
sketch2.addConstraint(Sketcher.Constraint("Vertical", 30))
sketch2.addConstraint(Sketcher.Constraint("Horizontal", 31))
sketch2.addConstraint(Sketcher.Constraint("Vertical", 32))
sketch2.addConstraint(Sketcher.Constraint("Horizontal", 33))
sketch2.addConstraint(Sketcher.Constraint("Vertical", 34))
sketch2.addConstraint(Sketcher.Constraint("Horizontal", 35))
sketch2.addConstraint(Sketcher.Constraint("Vertical", 36))
sketch2.addConstraint(Sketcher.Constraint("Horizontal", 37))
sketch2.addConstraint(Sketcher.Constraint("Vertical", 38))
sketch2.addConstraint(Sketcher.Constraint("Horizontal", 39))
sketch2.addConstraint(Sketcher.Constraint("Symmetric", 17, 2, 20, 2, -2))
sketch2.addConstraint(Sketcher.Constraint("Symmetric", 19, 2, 22, 2, -2))
sketch2.addConstraint(Sketcher.Constraint("Symmetric", 13, 2, 24, 2, -2))
sketch2.addConstraint(Sketcher.Constraint("Symmetric", 15, 2, 26, 2, -2))
sketch2.addConstraint(Sketcher.Constraint("Symmetric", 9, 2, 28, 2, -2))
sketch2.addConstraint(Sketcher.Constraint("Symmetric", 11, 2, 30, 2, -2))
sketch2.addConstraint(Sketcher.Constraint("Symmetric", 5, 2, 32, 2, -2))
sketch2.addConstraint(Sketcher.Constraint("Symmetric", 7, 2, 34, 2, -2))
sketch2.addConstraint(Sketcher.Constraint("Symmetric", 1, 2, 36, 2, -2))
sketch2.addConstraint(Sketcher.Constraint("Symmetric", 3, 2, 38, 2, -2))
sketch2.addConstraint(Sketcher.Constraint("Horizontal", 1, 2, 4, 2))
sketch2.addConstraint(Sketcher.Constraint("Horizontal", 3, 2, 6, 2))
sketch2.addConstraint(Sketcher.Constraint("Horizontal", 5, 2, 8, 2))
sketch2.addConstraint(Sketcher.Constraint("Horizontal", 7, 2, 10, 2))
sketch2.addConstraint(Sketcher.Constraint("Horizontal", 9, 2, 12, 2))
sketch2.addConstraint(Sketcher.Constraint("Horizontal", 11, 2, 14, 2))
sketch2.addConstraint(Sketcher.Constraint("Horizontal", 13, 2, 16, 2))
sketch2.addConstraint(Sketcher.Constraint("Horizontal", 15, 2, 18, 2))
sketch2.addConstraint(Sketcher.Constraint("Equal", 3, 5))
sketch2.addConstraint(Sketcher.Constraint("Equal", 7, 9))
sketch2.addConstraint(Sketcher.Constraint("Equal", 11, 13))
sketch2.addConstraint(Sketcher.Constraint("Equal", 15, 17))
sketch2.addConstraint(Sketcher.Constraint("DistanceY", 0, 2, 0, 1, Q("0.24 in")))
sketch2.addConstraint(Sketcher.Constraint("DistanceX", 1, 1, 1, 2, 10.398121))
sketch2.addConstraint(Sketcher.Constraint("DistanceY", 0, 2, -1, 1, 10.9957))
sketch2.addConstraint(Sketcher.Constraint("DistanceX", 5, 2, -1, 1, 68.56569))
sketch2.addConstraint(Sketcher.Constraint("DistanceX", 8, 2, -1, 1, 57.888169))
sketch2.addConstraint(Sketcher.Constraint("DistanceX", 16, 2, -1, 1, 15.736882))
sketch2.addConstraint(Sketcher.Constraint("DistanceX", 9, 2, 12, 2, 10.677521))
sketch2.addConstraint(Sketcher.Constraint("DistanceX", 0, 2, -1, 1, 100.039456))
pocket1 = body.newObject("PartDesign::Pocket", "Pocket")
pocket1.Profile = sketch2
pocket1.Length = 7.3754

sketch3 = body.newObject("Sketcher::SketchObject", "Sketch002")
sketch3.AttachmentSupport = (doc.getObject("XZ_Plane"), [""])
sketch3.MapMode = "FlatFace"
sketch3.AttachmentOffset = App.Placement(App.Vector(0, 0, -11.8547), App.Rotation())
sketch3.addGeometry(Part.Circle(App.Vector(4.5, 4.8, 0), App.Vector(0, 0, 1), 3.3), False)
sketch3.addGeometry(Part.LineSegment(App.Vector(-63.5, 5.1, 0), App.Vector(-63.5, -2.9, 0)), False)
sketch3.addGeometry(Part.LineSegment(App.Vector(-63.5, -2.9, 0), App.Vector(-50.5, -2.9, 0)), False)
sketch3.addGeometry(Part.LineSegment(App.Vector(-50.5, -2.9, 0), App.Vector(-50.5, 5.1, 0)), False)
sketch3.addGeometry(Part.LineSegment(App.Vector(-50.5, 5.1, 0), App.Vector(-63.5, 5.1, 0)), False)
sketch3.addConstraint(Sketcher.Constraint("Coincident", 1, 2, 2, 1))
sketch3.addConstraint(Sketcher.Constraint("Coincident", 2, 2, 3, 1))
sketch3.addConstraint(Sketcher.Constraint("Coincident", 3, 2, 4, 1))
sketch3.addConstraint(Sketcher.Constraint("Coincident", 4, 2, 1, 1))
sketch3.addConstraint(Sketcher.Constraint("Vertical", 1))
sketch3.addConstraint(Sketcher.Constraint("Horizontal", 2))
sketch3.addConstraint(Sketcher.Constraint("Vertical", 3))
sketch3.addConstraint(Sketcher.Constraint("Horizontal", 4))
sketch3.addConstraint(Sketcher.Constraint("Diameter", 0, 6.55))
sketch3.addConstraint(Sketcher.Constraint("DistanceX", 2, 1, 2, 2, 13.0))
sketch3.addConstraint(Sketcher.Constraint("DistanceY", 1, 2, 1, 1, 8.0))
sketch3.addConstraint(Sketcher.Constraint("DistanceX", -1, 1, 0, 3, 4.5))
sketch3.addConstraint(Sketcher.Constraint("DistanceY", -1, 1, 0, 3, 4.83))
sketch3.addConstraint(Sketcher.Constraint("DistanceX", 1, 2, 0, 3, 67.999992))
sketch3.addConstraint(Sketcher.Constraint("DistanceY", 1, 2, -1, 1, 2.882936))
pocket2 = body.newObject("PartDesign::Pocket", "Pocket001")
pocket2.Profile = sketch3
pocket2.Length = 7.3754

doc.recompute()
